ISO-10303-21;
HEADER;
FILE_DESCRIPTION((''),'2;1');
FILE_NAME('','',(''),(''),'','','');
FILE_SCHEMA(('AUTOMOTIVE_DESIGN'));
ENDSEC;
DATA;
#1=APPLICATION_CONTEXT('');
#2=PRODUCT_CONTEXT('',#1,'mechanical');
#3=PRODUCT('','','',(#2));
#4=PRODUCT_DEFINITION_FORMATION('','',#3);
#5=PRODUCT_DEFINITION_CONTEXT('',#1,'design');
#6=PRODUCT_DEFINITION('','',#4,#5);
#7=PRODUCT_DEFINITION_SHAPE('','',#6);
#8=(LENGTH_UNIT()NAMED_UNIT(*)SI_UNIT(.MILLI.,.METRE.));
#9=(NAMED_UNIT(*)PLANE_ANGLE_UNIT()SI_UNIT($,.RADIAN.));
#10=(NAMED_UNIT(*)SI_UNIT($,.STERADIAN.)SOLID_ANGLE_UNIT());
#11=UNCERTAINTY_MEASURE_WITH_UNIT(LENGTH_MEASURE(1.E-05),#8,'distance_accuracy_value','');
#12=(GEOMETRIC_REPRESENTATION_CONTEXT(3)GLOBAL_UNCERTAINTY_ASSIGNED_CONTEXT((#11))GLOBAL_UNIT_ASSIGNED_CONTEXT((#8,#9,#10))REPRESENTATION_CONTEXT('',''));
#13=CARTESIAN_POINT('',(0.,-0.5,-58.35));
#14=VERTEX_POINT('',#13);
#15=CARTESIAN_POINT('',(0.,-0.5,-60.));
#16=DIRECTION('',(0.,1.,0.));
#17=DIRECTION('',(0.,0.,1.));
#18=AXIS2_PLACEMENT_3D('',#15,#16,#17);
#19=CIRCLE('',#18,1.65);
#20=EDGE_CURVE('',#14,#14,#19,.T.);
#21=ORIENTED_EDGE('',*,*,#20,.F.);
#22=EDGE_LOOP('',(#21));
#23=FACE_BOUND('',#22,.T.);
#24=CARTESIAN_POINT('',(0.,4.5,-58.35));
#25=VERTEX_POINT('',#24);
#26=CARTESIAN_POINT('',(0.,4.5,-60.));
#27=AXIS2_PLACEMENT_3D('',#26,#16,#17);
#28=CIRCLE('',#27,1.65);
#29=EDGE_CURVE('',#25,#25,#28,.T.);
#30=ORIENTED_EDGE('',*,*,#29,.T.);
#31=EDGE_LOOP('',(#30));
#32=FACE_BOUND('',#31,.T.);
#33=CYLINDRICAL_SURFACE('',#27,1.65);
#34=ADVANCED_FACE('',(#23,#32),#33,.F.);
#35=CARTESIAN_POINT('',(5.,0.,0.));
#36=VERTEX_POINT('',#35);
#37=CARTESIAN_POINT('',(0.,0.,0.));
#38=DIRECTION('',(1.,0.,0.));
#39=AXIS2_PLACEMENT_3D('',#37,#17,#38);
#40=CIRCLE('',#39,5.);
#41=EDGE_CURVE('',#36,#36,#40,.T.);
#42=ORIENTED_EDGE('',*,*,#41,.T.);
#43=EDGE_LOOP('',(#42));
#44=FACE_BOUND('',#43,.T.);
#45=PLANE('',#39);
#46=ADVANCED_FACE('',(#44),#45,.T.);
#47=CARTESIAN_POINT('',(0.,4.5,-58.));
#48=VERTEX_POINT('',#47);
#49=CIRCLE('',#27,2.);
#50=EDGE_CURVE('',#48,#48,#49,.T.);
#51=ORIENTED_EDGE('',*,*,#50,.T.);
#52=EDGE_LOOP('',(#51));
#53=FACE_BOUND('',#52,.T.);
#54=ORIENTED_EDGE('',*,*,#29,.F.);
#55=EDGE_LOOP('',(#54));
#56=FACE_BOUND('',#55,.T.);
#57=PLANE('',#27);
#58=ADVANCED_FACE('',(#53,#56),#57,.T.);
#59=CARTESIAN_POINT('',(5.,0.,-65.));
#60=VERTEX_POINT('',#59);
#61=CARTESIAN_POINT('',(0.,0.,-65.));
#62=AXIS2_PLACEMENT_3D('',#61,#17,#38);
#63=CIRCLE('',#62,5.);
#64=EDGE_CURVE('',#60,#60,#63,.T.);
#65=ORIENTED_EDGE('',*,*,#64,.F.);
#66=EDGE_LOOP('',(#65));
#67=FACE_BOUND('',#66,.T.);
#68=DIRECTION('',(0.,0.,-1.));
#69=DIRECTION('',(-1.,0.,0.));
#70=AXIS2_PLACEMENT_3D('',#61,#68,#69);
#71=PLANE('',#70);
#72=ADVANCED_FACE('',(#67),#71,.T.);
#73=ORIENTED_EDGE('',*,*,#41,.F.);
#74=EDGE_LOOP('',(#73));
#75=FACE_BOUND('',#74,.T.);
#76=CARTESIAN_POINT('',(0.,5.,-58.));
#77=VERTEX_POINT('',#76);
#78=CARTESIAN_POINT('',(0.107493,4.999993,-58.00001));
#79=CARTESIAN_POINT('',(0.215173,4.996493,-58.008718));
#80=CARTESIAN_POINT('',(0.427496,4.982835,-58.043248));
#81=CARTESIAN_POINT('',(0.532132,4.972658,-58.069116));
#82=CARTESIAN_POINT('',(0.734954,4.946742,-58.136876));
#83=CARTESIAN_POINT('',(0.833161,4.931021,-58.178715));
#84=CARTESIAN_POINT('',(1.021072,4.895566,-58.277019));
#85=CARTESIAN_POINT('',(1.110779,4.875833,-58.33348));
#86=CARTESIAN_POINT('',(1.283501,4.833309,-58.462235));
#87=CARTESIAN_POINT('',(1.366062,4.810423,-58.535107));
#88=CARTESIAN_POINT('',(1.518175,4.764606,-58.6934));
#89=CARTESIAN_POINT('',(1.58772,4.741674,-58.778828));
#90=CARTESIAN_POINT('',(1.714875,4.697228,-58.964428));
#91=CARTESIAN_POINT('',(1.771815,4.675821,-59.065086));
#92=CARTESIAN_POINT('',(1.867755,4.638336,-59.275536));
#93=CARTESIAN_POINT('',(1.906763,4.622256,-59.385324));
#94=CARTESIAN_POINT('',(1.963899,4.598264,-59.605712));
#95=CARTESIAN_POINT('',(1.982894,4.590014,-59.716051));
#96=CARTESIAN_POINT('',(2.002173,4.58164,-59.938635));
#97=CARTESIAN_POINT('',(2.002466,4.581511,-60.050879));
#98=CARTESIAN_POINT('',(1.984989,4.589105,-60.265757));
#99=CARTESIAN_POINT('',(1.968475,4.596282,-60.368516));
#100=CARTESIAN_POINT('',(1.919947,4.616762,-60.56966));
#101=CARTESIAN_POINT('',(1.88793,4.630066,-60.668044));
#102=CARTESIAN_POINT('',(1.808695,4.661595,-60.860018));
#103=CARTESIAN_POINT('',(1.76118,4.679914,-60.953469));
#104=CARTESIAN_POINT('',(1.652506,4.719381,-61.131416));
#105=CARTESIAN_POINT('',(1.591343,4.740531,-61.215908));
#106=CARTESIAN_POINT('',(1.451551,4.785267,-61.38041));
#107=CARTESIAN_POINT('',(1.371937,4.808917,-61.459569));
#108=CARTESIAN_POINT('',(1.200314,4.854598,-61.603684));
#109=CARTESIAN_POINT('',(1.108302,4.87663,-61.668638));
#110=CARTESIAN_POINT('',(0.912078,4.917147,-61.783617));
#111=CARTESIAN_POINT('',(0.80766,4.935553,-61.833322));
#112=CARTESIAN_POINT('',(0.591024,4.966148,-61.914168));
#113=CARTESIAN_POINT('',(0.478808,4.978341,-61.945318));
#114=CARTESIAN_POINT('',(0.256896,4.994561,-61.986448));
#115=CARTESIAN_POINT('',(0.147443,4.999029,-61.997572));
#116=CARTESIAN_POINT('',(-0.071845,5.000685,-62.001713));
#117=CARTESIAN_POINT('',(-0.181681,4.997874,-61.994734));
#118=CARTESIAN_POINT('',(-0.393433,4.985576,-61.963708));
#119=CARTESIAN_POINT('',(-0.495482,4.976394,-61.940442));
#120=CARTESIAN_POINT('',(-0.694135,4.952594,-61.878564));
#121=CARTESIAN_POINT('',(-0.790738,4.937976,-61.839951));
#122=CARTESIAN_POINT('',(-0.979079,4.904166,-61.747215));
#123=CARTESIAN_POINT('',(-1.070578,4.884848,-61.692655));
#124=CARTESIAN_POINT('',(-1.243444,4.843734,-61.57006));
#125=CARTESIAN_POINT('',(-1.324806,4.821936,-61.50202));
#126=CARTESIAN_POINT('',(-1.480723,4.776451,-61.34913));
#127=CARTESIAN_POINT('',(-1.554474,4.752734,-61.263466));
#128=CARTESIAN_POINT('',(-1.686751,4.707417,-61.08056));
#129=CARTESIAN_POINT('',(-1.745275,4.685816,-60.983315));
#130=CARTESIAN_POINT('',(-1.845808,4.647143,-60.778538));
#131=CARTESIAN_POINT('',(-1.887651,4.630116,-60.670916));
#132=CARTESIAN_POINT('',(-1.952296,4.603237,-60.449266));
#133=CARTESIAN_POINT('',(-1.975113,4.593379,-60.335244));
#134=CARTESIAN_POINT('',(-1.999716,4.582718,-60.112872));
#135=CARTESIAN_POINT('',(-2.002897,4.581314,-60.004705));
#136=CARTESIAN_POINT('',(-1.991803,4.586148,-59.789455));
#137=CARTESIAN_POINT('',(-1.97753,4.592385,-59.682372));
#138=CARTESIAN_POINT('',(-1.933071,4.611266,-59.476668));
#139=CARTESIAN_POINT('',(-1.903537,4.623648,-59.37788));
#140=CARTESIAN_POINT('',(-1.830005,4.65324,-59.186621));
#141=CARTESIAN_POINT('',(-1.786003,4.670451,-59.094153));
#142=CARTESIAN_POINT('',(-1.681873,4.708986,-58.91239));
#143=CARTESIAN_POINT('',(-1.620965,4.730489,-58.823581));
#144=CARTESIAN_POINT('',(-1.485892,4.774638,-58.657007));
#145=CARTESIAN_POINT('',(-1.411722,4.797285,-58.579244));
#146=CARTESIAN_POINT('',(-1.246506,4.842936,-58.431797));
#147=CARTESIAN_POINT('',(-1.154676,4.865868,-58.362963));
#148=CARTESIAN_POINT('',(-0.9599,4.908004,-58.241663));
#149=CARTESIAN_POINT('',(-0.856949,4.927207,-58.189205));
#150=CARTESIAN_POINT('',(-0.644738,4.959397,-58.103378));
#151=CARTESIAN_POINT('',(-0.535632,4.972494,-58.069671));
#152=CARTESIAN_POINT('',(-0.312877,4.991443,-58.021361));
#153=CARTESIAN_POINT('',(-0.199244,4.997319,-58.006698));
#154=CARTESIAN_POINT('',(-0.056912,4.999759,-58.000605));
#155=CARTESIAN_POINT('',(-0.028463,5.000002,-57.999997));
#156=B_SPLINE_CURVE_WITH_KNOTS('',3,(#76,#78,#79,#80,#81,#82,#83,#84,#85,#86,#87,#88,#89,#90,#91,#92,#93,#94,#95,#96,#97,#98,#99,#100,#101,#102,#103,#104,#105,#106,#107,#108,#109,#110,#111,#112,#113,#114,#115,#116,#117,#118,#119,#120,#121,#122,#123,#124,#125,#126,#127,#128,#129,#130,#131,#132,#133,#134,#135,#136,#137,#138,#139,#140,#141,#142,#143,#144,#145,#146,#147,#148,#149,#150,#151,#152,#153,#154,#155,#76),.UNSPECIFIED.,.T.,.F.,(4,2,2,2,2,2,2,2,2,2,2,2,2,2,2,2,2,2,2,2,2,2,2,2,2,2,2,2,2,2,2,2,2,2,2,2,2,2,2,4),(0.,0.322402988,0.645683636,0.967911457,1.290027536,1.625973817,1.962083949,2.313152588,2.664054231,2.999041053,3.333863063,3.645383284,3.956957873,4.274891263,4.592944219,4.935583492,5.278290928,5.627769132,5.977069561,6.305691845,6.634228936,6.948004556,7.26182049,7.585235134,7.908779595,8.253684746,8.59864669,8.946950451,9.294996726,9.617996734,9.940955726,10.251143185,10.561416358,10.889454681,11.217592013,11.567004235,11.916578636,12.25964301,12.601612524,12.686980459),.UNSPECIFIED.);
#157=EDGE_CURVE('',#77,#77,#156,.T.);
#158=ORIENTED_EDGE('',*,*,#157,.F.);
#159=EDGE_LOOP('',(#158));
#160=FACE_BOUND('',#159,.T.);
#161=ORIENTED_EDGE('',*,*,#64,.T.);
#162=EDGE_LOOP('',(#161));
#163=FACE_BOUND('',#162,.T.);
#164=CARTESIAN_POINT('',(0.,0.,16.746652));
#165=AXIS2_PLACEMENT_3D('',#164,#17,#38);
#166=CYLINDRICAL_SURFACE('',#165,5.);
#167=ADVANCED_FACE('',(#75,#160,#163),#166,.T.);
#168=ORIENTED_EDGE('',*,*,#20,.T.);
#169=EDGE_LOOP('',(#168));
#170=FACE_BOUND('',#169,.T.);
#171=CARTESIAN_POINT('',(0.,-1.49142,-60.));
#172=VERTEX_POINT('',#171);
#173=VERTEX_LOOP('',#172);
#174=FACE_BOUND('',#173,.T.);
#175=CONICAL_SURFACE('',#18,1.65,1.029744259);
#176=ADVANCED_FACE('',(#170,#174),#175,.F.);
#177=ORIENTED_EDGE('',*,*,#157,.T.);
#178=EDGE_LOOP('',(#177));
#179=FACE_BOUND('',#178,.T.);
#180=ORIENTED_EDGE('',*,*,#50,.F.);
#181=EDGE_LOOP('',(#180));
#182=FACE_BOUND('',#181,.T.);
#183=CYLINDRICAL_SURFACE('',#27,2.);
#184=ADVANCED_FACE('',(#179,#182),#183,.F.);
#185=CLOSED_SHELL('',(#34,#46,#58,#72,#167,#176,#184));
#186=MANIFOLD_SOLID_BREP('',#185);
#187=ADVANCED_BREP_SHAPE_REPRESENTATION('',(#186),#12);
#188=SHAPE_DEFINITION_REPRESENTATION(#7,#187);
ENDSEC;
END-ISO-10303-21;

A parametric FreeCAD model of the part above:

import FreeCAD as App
import Part
import Sketcher
Q = App.Units.Quantity

doc = App.newDocument("Part")
body = doc.addObject("PartDesign::Body", "Body")

# Sketch on XZ plane
sketch1 = body.newObject("Sketcher::SketchObject", "Sketch")
sketch1.AttachmentSupport = (doc.getObject("XZ_Plane"), [""])
sketch1.MapMode = "FlatFace"
sketch1.addGeometry(Part.LineSegment(App.Vector(0, -65, 0), App.Vector(0, 0, 0)), False)
sketch1.addGeometry(Part.LineSegment(App.Vector(0, 0, 0), App.Vector(5, 0, 0)), False)
sketch1.addGeometry(Part.LineSegment(App.Vector(5, 0, 0), App.Vector(5, -65, 0)), False)
sketch1.addGeometry(Part.LineSegment(App.Vector(5, -65, 0), App.Vector(0, -65, 0)), False)
sketch1.addConstraint(Sketcher.Constraint("Coincident", 0, 2, 1, 1))
sketch1.addConstraint(Sketcher.Constraint("Coincident", 1, 2, 2, 1))
sketch1.addConstraint(Sketcher.Constraint("Coincident", 2, 2, 3, 1))
sketch1.addConstraint(Sketcher.Constraint("Coincident", 3, 2, 0, 1))
sketch1.addConstraint(Sketcher.Constraint("Vertical", 0))
sketch1.addConstraint(Sketcher.Constraint("Horizontal", 1))
sketch1.addConstraint(Sketcher.Constraint("Vertical", 2))
sketch1.addConstraint(Sketcher.Constraint("Horizontal", 3))
sketch1.addConstraint(Sketcher.Constraint("Coincident", 0, 2, -1, 1))
sketch1.addConstraint(Sketcher.Constraint("DistanceX", 1, 1, 1, 2, Q("5 mm")))
sketch1.addConstraint(Sketcher.Constraint("DistanceY", 0, 1, 0, 2, Q("65 mm")))
revolution = body.newObject("PartDesign::Revolution", "Revolution")
revolution.Profile = sketch1
revolution.ReferenceAxis = (sketch1, ["V_Axis"])
revolution.Angle = 360

# Sketch on XZ plane
sketch2 = body.newObject("Sketcher::SketchObject", "Sketch001")
sketch2.AttachmentSupport = (doc.getObject("XZ_Plane"), [""])
sketch2.MapMode = "FlatFace"
sketch2.AttachmentOffset = App.Placement(App.Vector(0, 0, -5), App.Rotation())
sketch2.addGeometry(Part.Circle(App.Vector(0, -60, 0), App.Vector(0, 0, 1), 2), False)
sketch2.addConstraint(Sketcher.Constraint("PointOnObject", 0, 3, -2))
sketch2.addConstraint(Sketcher.Constraint("Diameter", 0, Q("4 mm")))
sketch2.addConstraint(Sketcher.Constraint("DistanceY", 0, 3, -1, 1, Q("60 mm")))
pocket1 = body.newObject("PartDesign::Pocket", "Pocket")
pocket1.Profile = sketch2
pocket1.Length = 0.5
pocket1.Reversed = True

# Sketch on XZ plane
sketch3 = body.newObject("Sketcher::SketchObject", "Sketch002")
sketch3.AttachmentSupport = (doc.getObject("XZ_Plane"), [""])
sketch3.MapMode = "FlatFace"
sketch3.AttachmentOffset = App.Placement(App.Vector(0, 0, -4.5), App.Rotation())
sketch3.addGeometry(Part.Circle(App.Vector(0, -60, 0), App.Vector(0, 0, 1), 1.6), False)
sketch3.addConstraint(Sketcher.Constraint("PointOnObject", 0, 3, -2))
sketch3.addConstraint(Sketcher.Constraint("Diameter", 0, Q("3.3 mm")))
sketch3.addConstraint(Sketcher.Constraint("DistanceY", 0, 3, -1, 1, Q("60 mm")))
doc.recompute()
hole = body.newObject("PartDesign::Hole", "Hole")
hole.Profile = sketch3
hole.ThreadType = "None"
hole.Diameter = 3.3
hole.DepthType = "Dimension"
hole.Depth = 5
hole.DrillPoint = "Angled"
hole.DrillPointAngle = 118
hole.Reversed = True

doc.recompute()
